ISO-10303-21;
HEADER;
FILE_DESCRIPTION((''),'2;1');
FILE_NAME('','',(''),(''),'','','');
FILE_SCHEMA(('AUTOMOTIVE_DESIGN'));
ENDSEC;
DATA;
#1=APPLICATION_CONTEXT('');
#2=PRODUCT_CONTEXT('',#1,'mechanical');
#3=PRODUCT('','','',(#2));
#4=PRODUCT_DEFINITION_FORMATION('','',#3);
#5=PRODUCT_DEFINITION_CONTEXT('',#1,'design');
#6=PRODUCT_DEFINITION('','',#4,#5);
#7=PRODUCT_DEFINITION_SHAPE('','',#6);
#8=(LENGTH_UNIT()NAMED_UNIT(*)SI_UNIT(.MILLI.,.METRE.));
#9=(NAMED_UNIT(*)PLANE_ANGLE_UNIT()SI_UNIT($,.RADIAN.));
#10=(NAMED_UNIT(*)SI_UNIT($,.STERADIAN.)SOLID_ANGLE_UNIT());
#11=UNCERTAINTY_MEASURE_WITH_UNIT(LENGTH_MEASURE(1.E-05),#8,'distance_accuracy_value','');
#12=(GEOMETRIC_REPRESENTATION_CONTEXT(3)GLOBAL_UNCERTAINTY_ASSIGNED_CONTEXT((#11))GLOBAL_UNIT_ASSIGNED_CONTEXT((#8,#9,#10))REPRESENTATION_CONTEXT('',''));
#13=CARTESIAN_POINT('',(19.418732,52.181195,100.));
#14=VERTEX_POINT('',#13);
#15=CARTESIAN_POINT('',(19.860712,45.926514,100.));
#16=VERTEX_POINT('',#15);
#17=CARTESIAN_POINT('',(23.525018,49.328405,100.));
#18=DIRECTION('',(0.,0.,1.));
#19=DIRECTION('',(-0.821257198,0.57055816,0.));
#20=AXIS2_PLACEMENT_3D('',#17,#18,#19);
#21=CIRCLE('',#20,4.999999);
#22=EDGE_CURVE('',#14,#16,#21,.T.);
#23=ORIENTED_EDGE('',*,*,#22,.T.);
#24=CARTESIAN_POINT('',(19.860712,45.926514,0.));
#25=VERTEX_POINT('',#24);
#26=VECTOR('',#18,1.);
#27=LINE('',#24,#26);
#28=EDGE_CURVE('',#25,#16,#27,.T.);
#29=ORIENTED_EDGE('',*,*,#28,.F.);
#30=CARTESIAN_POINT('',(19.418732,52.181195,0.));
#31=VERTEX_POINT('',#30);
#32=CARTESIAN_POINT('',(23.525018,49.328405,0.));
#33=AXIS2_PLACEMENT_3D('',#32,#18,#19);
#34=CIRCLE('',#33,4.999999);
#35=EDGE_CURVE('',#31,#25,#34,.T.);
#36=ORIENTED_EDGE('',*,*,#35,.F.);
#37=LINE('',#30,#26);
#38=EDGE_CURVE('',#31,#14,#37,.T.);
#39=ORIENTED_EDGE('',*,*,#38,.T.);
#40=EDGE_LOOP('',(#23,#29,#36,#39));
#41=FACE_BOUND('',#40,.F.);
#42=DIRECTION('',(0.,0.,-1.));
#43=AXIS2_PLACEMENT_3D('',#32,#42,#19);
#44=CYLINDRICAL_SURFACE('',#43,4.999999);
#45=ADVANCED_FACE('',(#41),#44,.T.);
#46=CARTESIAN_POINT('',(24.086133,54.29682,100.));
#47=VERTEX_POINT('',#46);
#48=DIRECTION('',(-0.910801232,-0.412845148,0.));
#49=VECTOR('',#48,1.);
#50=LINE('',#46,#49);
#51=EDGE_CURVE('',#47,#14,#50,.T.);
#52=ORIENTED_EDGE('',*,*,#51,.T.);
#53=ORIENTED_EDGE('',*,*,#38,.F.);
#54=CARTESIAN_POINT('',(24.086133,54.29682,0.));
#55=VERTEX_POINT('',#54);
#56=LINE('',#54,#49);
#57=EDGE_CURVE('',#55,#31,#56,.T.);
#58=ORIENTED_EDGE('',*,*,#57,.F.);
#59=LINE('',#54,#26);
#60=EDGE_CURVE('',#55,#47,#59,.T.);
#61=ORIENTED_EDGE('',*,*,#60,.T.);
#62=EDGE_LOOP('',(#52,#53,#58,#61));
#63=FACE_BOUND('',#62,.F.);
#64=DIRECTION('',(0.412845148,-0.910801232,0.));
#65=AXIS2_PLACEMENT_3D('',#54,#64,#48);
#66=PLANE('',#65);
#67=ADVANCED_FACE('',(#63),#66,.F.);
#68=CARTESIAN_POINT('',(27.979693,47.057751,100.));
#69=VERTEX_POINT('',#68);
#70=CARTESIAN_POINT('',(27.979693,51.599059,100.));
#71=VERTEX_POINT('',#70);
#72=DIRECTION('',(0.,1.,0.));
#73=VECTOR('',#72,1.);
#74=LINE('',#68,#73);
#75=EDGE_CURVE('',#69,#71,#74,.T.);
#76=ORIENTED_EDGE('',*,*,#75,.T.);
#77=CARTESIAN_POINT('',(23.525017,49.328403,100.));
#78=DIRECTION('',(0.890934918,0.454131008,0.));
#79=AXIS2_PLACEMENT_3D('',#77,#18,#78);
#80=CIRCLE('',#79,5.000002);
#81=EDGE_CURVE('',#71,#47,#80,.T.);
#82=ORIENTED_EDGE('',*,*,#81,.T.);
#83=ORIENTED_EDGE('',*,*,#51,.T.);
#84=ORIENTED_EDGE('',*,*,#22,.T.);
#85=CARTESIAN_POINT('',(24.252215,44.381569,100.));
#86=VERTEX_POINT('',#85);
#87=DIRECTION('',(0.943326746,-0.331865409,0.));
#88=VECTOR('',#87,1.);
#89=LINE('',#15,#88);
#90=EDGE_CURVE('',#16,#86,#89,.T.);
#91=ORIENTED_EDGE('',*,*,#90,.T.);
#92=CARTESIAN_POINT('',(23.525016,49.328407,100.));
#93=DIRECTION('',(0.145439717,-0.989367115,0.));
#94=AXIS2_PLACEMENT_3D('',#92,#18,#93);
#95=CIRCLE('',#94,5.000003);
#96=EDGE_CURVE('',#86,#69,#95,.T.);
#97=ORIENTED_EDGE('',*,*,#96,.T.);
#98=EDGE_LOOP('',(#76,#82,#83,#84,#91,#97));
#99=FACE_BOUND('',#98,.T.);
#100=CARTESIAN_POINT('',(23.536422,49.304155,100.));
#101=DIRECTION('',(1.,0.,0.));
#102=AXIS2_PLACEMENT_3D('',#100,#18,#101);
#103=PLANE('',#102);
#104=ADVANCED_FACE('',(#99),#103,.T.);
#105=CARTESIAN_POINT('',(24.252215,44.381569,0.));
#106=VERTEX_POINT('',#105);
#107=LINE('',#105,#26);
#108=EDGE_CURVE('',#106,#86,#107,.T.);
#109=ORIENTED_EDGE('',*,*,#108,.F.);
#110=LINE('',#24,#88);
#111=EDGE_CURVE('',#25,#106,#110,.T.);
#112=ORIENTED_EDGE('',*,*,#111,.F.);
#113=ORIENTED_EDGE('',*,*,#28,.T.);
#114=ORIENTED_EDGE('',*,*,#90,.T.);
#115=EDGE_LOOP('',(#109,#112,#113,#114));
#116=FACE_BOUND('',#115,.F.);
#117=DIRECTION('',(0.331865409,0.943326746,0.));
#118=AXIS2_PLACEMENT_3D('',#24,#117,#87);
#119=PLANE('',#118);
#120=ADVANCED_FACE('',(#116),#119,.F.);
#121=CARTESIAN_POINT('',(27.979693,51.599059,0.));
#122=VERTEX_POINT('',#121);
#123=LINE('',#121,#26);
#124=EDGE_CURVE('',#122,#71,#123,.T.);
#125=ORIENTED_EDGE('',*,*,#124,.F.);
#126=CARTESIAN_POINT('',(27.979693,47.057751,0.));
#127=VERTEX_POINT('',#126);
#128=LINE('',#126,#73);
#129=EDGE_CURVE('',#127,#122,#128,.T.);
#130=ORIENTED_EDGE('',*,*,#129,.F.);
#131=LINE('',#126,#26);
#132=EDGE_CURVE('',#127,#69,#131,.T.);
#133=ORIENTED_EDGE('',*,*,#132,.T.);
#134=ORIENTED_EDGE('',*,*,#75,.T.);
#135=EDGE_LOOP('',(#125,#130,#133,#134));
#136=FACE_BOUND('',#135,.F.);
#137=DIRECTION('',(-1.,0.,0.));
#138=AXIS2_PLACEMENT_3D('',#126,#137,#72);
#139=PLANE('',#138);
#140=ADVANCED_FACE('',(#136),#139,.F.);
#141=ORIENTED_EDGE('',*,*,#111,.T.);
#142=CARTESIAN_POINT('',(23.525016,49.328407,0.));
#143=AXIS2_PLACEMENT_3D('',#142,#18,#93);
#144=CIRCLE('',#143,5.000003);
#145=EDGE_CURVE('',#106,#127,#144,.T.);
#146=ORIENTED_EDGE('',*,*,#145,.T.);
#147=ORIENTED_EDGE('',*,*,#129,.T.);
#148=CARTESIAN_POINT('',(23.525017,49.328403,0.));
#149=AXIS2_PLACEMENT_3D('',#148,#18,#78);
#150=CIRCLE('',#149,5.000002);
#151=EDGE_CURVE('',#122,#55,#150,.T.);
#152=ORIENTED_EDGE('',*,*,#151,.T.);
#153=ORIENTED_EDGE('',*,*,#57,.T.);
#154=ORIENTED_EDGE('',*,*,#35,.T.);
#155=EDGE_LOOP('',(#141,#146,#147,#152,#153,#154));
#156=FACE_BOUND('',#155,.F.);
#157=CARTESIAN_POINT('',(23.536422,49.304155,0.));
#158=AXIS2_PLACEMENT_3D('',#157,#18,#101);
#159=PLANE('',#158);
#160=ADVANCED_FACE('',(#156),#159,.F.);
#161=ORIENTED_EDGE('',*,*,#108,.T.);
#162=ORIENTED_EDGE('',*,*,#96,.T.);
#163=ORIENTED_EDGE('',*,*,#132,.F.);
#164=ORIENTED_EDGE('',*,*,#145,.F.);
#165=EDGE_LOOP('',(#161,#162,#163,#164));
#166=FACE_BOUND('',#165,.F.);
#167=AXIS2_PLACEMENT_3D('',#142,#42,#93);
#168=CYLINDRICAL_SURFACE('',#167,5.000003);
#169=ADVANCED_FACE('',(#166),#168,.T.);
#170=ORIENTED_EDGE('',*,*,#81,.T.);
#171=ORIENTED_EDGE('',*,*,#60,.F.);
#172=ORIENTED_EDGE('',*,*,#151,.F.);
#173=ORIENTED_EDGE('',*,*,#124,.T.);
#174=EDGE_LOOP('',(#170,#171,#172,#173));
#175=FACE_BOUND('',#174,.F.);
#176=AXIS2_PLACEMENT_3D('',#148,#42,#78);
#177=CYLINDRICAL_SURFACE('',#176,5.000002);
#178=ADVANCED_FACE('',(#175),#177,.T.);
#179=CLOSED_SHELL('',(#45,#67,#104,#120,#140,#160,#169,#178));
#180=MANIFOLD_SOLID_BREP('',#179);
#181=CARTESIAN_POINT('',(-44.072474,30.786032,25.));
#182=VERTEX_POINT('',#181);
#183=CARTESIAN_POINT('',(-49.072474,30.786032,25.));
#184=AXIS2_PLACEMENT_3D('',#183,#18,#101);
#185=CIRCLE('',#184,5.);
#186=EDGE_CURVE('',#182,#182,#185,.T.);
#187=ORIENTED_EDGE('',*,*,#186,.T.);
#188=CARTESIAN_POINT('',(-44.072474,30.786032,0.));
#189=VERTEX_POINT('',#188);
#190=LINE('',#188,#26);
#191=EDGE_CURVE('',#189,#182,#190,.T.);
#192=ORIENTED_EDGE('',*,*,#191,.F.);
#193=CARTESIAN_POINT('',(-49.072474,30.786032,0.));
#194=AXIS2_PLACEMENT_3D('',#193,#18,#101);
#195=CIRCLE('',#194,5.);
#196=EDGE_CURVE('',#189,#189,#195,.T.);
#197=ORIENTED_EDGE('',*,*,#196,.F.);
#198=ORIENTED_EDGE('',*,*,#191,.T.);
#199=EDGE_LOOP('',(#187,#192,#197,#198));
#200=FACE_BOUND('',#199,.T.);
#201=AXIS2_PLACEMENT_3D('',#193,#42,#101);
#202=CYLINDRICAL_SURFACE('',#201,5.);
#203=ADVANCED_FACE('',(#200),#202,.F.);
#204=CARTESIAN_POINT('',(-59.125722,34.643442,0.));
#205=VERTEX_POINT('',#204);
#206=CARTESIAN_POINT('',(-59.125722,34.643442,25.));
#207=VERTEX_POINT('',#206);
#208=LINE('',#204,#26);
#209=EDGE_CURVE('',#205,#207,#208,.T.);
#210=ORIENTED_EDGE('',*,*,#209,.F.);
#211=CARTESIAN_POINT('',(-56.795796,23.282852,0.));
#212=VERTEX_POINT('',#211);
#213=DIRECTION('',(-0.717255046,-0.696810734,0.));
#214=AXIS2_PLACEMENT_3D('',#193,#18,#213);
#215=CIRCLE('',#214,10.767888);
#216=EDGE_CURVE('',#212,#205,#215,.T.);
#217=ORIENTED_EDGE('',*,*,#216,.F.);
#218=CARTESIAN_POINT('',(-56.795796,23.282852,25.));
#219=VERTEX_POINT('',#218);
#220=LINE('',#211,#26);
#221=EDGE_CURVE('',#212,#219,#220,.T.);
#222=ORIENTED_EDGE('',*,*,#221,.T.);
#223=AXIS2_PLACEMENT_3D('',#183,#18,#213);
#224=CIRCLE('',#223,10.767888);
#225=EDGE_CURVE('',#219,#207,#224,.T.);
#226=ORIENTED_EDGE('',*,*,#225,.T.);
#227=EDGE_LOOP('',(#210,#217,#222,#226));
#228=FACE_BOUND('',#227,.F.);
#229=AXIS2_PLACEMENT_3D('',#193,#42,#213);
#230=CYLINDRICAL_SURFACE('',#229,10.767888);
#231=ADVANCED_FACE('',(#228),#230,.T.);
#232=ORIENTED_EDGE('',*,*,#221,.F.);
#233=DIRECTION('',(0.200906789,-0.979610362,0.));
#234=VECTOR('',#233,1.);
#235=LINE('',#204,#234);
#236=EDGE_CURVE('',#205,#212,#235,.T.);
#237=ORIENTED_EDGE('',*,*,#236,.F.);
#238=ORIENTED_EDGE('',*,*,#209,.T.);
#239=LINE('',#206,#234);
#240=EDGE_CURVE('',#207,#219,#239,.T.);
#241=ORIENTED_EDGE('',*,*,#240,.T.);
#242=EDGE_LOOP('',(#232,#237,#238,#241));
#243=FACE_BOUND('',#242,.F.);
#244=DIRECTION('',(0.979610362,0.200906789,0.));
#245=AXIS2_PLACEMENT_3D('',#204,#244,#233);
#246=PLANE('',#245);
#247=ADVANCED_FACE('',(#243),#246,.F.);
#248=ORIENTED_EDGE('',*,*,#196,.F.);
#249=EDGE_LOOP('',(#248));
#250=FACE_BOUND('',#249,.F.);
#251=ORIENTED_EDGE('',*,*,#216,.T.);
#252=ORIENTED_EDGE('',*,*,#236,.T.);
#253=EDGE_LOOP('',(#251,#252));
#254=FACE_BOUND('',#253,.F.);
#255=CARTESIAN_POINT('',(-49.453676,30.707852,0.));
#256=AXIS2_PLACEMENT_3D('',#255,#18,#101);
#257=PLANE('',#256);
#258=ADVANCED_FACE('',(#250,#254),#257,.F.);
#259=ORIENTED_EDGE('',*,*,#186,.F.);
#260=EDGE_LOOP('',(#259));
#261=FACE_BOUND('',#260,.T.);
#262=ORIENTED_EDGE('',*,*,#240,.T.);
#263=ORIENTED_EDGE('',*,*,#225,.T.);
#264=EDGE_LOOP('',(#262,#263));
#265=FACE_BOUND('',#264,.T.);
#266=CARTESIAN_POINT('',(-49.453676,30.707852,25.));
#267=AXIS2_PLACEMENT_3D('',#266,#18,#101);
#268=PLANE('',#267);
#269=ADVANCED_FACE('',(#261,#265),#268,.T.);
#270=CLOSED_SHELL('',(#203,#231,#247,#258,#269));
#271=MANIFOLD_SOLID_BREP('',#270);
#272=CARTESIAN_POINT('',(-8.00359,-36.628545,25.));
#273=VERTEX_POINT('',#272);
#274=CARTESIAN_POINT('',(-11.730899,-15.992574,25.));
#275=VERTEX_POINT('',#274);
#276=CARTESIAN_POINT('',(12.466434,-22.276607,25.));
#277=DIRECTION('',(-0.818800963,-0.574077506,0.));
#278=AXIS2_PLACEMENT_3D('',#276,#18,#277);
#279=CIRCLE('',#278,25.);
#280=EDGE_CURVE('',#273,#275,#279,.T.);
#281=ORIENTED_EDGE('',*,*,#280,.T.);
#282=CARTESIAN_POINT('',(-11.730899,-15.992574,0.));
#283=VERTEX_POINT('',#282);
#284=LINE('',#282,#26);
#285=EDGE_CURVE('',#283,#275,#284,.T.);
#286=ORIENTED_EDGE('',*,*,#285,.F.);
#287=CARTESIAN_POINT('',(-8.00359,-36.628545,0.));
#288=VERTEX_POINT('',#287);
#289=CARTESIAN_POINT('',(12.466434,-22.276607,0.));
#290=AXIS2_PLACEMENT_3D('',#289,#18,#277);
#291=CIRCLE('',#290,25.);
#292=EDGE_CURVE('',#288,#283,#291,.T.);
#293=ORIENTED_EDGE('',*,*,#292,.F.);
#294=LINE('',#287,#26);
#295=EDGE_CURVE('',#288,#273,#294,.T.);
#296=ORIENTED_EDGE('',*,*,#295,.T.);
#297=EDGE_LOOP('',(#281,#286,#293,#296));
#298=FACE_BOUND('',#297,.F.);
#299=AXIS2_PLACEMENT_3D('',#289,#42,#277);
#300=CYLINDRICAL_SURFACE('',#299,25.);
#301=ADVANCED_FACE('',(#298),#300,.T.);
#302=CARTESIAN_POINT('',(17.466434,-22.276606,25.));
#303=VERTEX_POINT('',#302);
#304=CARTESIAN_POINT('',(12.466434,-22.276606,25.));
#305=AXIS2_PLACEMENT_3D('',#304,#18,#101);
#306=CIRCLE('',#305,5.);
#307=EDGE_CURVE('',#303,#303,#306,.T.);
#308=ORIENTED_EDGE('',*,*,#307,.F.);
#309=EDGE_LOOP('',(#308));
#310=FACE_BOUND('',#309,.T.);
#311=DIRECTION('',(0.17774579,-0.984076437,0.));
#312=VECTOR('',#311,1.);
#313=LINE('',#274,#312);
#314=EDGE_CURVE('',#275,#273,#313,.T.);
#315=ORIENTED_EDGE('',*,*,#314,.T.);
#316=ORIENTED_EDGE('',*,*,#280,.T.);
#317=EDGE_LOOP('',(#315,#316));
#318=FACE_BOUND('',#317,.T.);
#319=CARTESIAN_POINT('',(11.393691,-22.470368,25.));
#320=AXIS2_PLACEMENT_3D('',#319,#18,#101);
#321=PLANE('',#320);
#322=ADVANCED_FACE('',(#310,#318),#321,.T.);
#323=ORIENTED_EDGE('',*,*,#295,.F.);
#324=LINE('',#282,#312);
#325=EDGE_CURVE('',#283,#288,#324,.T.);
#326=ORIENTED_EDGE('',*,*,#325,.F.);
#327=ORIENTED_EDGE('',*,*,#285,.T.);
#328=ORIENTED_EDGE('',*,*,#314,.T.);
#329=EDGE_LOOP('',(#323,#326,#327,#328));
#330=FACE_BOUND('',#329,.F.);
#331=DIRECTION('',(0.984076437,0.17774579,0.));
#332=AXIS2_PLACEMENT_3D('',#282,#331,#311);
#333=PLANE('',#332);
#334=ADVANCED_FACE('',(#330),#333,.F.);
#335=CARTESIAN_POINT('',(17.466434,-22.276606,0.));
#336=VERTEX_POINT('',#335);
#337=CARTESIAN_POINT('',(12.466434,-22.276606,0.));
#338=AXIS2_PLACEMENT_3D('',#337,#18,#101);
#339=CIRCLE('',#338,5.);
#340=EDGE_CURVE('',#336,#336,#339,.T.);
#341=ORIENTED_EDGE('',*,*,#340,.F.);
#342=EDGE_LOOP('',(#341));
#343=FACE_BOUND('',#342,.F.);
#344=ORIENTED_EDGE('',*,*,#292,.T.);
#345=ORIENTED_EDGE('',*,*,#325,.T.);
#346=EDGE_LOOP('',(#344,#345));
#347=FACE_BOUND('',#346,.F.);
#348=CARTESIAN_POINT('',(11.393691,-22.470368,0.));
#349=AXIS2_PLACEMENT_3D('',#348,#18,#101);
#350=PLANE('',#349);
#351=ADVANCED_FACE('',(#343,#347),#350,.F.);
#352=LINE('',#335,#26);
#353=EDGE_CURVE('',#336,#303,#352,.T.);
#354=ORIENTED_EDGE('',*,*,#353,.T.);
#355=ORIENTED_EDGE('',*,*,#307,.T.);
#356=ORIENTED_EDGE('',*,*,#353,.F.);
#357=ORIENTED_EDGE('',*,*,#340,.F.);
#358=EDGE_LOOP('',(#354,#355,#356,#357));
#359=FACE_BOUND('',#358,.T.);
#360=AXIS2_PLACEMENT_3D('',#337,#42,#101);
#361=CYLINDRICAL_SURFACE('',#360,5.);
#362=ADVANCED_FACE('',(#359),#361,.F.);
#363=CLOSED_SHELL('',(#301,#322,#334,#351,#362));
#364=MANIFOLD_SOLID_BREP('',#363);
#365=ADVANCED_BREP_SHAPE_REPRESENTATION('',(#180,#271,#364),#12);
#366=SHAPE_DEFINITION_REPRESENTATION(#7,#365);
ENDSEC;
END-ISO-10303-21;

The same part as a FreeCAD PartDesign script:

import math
import FreeCAD as App
import Part
import Sketcher

V = App.Vector
Q = App.Units.Quantity

doc = App.newDocument("Part")
body = doc.addObject("PartDesign::Body", "Body")

# Sketch on XY plane
sketch1 = body.newObject("Sketcher::SketchObject", "Sketch")
sketch1.AttachmentSupport = (doc.getObject("XY_Plane"), [""])
sketch1.MapMode = "FlatFace"
sketch1.addGeometry([
    Part.LineSegment(V(-59.125722, 34.643442, 0), V(-56.795796, 23.282852, 0)),
    Part.ArcOfCircle(Part.Circle(V(-49.072474, 30.786032, 0), V(0, 0, 1), 10.767888), math.radians(-135.828315), math.radians(159.008296)),
    Part.Circle(V(-49.072474, 30.786032, 0), V(0, 0, 1), 5),
], False)
sketch1.addConstraint([
    Sketcher.Constraint("Coincident", 0, 1, 1, 2),
    Sketcher.Constraint("Coincident", 1, 1, 0, 2),
    Sketcher.Constraint("Coincident", 2, 3, 1, 3),
    Sketcher.Constraint("Diameter", 2, 10.0),
    Sketcher.Constraint("Angle", 0, Q("-78.410009 deg")),
    Sketcher.Constraint("Radius", 1, 10.767888),
    Sketcher.Constraint("Distance", 0, 11.59705),
    Sketcher.Constraint("DistanceY", -1, 1, 1, 3, 30.786032),
    Sketcher.Constraint("DistanceX", 1, 3, -1, 1, 49.072474),
])
pad1 = body.newObject("PartDesign::Pad", "Pad")
pad1.Profile = sketch1
pad1.Length = 25
body2 = doc.addObject("PartDesign::Body", "Body001")

# Sketch on XY plane
sketch2 = body2.newObject("Sketcher::SketchObject", "Sketch001")
sketch2.AttachmentSupport = (doc.getObject("XY_Plane001"), [""])
sketch2.MapMode = "FlatFace"
sketch2.addGeometry([
    Part.LineSegment(V(-11.730899, -15.992574, 0), V(-8.00359, -36.628545, 0)),
    Part.ArcOfCircle(Part.Circle(V(12.466434, -22.276607, 0), V(0, 0, 1), 25), math.radians(-144.964945), math.radians(165.441917)),
    Part.Circle(V(12.466434, -22.276606, 0), V(0, 0, 1), 5),
], False)
sketch2.addConstraint([
    Sketcher.Constraint("Coincident", 0, 1, 1, 2),
    Sketcher.Constraint("Coincident", 1, 1, 0, 2),
    Sketcher.Constraint("Coincident", 2, 3, 1, 3),
    Sketcher.Constraint("Diameter", 2, 10.0),
    Sketcher.Constraint("Radius", 1, 25.0),
    Sketcher.Constraint("DistanceX", 0, 1, -1, 1, 11.730899),
    Sketcher.Constraint("DistanceX", 1, 1, -1, 1, 8.00359),
    Sketcher.Constraint("DistanceY", 1, 1, 0, 1, 20.635971),
    Sketcher.Constraint("DistanceY", 1, 3, -1, 1, 22.276607),
])
pad2 = body2.newObject("PartDesign::Pad", "Pad001")
pad2.Profile = sketch2
pad2.Length = 25
body3 = doc.addObject("PartDesign::Body", "Body002")

# Sketch on XY plane
sketch3 = body3.newObject("Sketcher::SketchObject", "Sketch002")
sketch3.AttachmentSupport = (doc.getObject("XY_Plane002"), [""])
sketch3.MapMode = "FlatFace"
sketch3.addGeometry([
    Part.LineSegment(V(24.086133, 54.29682, 0), V(19.418732, 52.181195, 0)),  # 0
    Part.ArcOfCircle(Part.Circle(V(23.525018, 49.328405, 0), V(0, 0, 1), 4.999999), math.radians(145.210843), math.radians(222.873203)),  # 1
    Part.LineSegment(V(19.860712, 45.926514, 0), V(24.252215, 44.381569, 0)),  # 2
    Part.ArcOfCircle(Part.Circle(V(23.525016, 49.328407, 0), V(0, 0, 1), 5.000003), math.radians(-81.637257), math.radians(-27.009035)),  # 3
    Part.LineSegment(V(27.979693, 47.057751, 0), V(27.979693, 51.599059, 0)),  # 4
    Part.ArcOfCircle(Part.Circle(V(23.525017, 49.328403, 0), V(0, 0, 1), 5.000002), math.radians(27.009036), math.radians(83.556512)),  # 5
], False)
sketch3.addConstraint([
    Sketcher.Constraint("Coincident", 0, 2, 1, 1),
    Sketcher.Constraint("Coincident", 1, 2, 2, 1),
    Sketcher.Constraint("Coincident", 2, 2, 3, 1),
    Sketcher.Constraint("Coincident", 3, 2, 4, 1),
    Sketcher.Constraint("Coincident", 4, 2, 5, 1),
    Sketcher.Constraint("Coincident", 5, 2, 0, 1),
    Sketcher.Constraint("Vertical", 4),
    Sketcher.Constraint("Coincident", 3, 3, 1, 3),
    Sketcher.Constraint("Coincident", 5, 3, 1, 3),
    Sketcher.Constraint("Equal", 3, 5),
    Sketcher.Constraint("Radius", 1, 4.999999),
    Sketcher.Constraint("Radius", 5, 5.000002),
    Sketcher.Constraint("Distance", 0, 5.1245),
    Sketcher.Constraint("DistanceX", 5, 3, 2, 2, 0.727198),
    Sketcher.Constraint("DistanceX", 0, 2, 5, 2, 4.667401),
    Sketcher.Constraint("DistanceY", 4, 1, 4, 2, 4.541308),
    Sketcher.Constraint("DistanceX", -1, 1, 0, 2, 19.418732),
    Sketcher.Constraint("DistanceY", -1, 1, 2, 2, 44.381569),
    Sketcher.Constraint("DistanceY", 1, 2, 5, 3, 3.401889),
])
pad3 = body3.newObject("PartDesign::Pad", "Pad002")
pad3.Profile = sketch3
pad3.Length = 100

doc.recompute()
